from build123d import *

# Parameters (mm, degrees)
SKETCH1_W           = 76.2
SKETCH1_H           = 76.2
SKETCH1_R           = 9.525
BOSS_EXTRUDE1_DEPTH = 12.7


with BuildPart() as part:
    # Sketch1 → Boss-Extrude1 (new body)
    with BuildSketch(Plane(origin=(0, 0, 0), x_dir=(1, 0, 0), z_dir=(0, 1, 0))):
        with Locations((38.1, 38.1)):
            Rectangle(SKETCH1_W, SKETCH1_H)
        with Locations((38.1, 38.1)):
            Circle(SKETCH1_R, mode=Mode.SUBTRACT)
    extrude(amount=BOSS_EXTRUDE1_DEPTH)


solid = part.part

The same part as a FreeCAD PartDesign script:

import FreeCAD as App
import Part
import Sketcher

V = App.Vector
Q = App.Units.Quantity


def add_polygon(sketch, points):
    """Adds a closed chain of lines whose ends are joined by coincident constraints."""
    first, n = sketch.GeometryCount, len(points)
    for a, b in zip(points, points[1:] + points[:1]):
        sketch.addGeometry(Part.LineSegment(App.Vector(*a, 0), App.Vector(*b, 0)), False)
    for i in range(n):
        sketch.addConstraint(Sketcher.Constraint("Coincident", first + i, 2, first + (i + 1) % n, 1))

doc = App.newDocument("Part")
body = doc.addObject("PartDesign::Body", "Body")

sketch1 = doc.addObject("Sketcher::SketchObject", "Sketch")
body.addObject(sketch1)
sketch1.AttachmentSupport = (doc.XZ_Plane, [""])
sketch1.MapMode = "FlatFace"
add_polygon(sketch1, [(0, -76.2), (0, 0), (76.2, 0), (76.2, -76.2)])
sketch1.addGeometry(Part.Circle(V(38.1, -38.1, 0), V(0, 0, 1), 9.525), False)
sketch1.addConstraint(Sketcher.Constraint("Vertical", 0))
sketch1.addConstraint(Sketcher.Constraint("Horizontal", 1))
sketch1.addConstraint(Sketcher.Constraint("Vertical", 2))
sketch1.addConstraint(Sketcher.Constraint("Horizontal", 3))
sketch1.addConstraint(Sketcher.Constraint("Coincident", 0, 2, -1, 1))
sketch1.addConstraint(Sketcher.Constraint("Equal", 3, 0))
sketch1.addConstraint(Sketcher.Constraint("Diameter", 4, Q("0.75 in")))
sketch1.addConstraint(Sketcher.Constraint("DistanceX", 1, 1, 1, 2, Q("3 in")))
sketch1.addConstraint(Sketcher.Constraint("DistanceX", -1, 1, 4, 3, Q("1.5 in")))
sketch1.addConstraint(Sketcher.Constraint("DistanceY", 4, 3, -1, 1, Q("1.5 in")))
pad1 = doc.addObject("PartDesign::Pad", "Pad")
body.addObject(pad1)
pad1.Profile = sketch1
pad1.Length = Q("0.5 in")
pad1.Reversed = True

doc.recompute()
